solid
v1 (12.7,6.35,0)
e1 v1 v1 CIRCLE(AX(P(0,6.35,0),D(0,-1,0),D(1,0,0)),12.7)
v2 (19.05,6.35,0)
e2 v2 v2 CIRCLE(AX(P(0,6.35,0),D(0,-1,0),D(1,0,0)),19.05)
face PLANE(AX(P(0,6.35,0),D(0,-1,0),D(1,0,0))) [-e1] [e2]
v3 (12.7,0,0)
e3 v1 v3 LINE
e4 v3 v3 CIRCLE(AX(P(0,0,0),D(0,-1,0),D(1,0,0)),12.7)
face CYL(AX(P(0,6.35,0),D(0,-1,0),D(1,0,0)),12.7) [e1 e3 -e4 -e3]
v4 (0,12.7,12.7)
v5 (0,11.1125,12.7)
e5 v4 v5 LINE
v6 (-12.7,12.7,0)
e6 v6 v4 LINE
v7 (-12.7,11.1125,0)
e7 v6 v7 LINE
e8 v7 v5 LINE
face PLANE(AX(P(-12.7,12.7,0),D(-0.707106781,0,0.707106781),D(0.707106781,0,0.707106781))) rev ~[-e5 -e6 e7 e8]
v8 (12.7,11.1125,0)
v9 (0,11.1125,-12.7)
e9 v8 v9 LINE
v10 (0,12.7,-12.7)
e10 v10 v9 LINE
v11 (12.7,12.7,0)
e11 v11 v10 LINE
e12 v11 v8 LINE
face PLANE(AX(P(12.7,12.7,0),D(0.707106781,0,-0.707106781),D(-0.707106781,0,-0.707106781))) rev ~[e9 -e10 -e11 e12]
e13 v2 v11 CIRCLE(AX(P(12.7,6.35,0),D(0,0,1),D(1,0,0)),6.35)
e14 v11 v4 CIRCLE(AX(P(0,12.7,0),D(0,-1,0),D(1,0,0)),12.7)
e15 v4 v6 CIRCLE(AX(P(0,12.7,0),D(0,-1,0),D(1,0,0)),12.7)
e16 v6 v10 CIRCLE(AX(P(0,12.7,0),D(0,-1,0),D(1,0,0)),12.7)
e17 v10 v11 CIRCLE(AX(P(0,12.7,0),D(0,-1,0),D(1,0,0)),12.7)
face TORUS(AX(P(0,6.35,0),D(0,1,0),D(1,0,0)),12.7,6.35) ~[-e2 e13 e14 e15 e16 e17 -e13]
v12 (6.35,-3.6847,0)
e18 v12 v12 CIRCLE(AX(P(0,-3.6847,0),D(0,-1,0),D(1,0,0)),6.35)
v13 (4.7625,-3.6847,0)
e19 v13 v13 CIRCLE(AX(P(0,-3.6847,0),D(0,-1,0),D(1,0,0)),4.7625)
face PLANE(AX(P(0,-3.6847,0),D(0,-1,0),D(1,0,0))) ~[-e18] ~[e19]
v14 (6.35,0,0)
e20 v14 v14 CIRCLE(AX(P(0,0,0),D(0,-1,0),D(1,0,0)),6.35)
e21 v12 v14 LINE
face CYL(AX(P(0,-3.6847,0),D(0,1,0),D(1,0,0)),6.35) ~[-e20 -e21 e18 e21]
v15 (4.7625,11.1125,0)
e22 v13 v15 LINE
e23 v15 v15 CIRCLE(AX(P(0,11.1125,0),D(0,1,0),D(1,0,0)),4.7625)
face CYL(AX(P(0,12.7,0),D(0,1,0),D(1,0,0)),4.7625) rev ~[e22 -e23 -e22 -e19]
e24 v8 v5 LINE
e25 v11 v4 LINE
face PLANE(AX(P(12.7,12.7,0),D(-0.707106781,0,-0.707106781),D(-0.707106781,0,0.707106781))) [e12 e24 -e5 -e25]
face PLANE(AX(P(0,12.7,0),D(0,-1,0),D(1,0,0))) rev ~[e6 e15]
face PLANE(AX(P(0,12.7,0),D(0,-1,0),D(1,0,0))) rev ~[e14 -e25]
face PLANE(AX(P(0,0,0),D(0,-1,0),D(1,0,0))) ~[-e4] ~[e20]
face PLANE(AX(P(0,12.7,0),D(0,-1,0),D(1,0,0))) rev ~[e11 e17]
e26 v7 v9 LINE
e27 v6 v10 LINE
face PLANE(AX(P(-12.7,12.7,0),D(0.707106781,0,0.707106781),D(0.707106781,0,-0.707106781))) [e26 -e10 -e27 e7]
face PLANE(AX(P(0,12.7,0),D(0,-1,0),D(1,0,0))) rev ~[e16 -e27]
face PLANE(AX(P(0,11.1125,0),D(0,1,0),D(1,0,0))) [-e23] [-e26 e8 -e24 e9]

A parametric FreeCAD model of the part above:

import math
import FreeCAD as App
import Part
import Sketcher
Q = App.Units.Quantity


def add_polygon(sketch, points):
    """Adds a closed chain of lines whose ends are joined by coincident constraints."""
    first, n = sketch.GeometryCount, len(points)
    for a, b in zip(points, points[1:] + points[:1]):
        sketch.addGeometry(Part.LineSegment(App.Vector(*a, 0), App.Vector(*b, 0)), False)
    for i in range(n):
        sketch.addConstraint(Sketcher.Constraint("Coincident", first + i, 2, first + (i + 1) % n, 1))

doc = App.newDocument("Part")
body = doc.addObject("PartDesign::Body", "Body")

# Sketch on XY plane
sketch1 = body.newObject("Sketcher::SketchObject", "Sketch")
sketch1.AttachmentSupport = (doc.getObject("XY_Plane"), [""])
sketch1.MapMode = "FlatFace"
sketch1.addGeometry([
    Part.LineSegment(App.Vector(0, 12.7, 0), App.Vector(0, 0, 0)),  # 0
    Part.LineSegment(App.Vector(0, 0, 0), App.Vector(4.8, 0, 0)),  # 1
    Part.LineSegment(App.Vector(4.8, 0, 0), App.Vector(4.8, -3.7, 0)),  # 2
    Part.LineSegment(App.Vector(4.8, -3.7, 0), App.Vector(6.3, -3.7, 0)),  # 3
    Part.LineSegment(App.Vector(6.3, -3.7, 0), App.Vector(6.3, 0, 0)),  # 4
    Part.LineSegment(App.Vector(6.3, 0, 0), App.Vector(12.7, 0, 0)),  # 5
    Part.LineSegment(App.Vector(12.7, 0, 0), App.Vector(12.7, 6.3, 0)),  # 6
    Part.LineSegment(App.Vector(12.7, 6.3, 0), App.Vector(19.1, 6.3, 0)),  # 7
    Part.ArcOfCircle(Part.Circle(App.Vector(12.7, 6.3, 0), App.Vector(0, 0, 1), 6.4), math.radians(0), math.radians(90)),  # 8
    Part.LineSegment(App.Vector(12.7, 12.7, 0), App.Vector(0, 12.7, 0)),  # 9
], False)
sketch1.addConstraint([
    Sketcher.Constraint("Coincident", 0, 2, 1, 1),
    Sketcher.Constraint("Coincident", 1, 2, 2, 1),
    Sketcher.Constraint("Coincident", 2, 2, 3, 1),
    Sketcher.Constraint("Coincident", 3, 2, 4, 1),
    Sketcher.Constraint("Coincident", 4, 2, 5, 1),
    Sketcher.Constraint("Coincident", 5, 2, 6, 1),
    Sketcher.Constraint("Coincident", 6, 2, 7, 1),
    Sketcher.Constraint("Coincident", 7, 2, 8, 1),
    Sketcher.Constraint("Tangent", 8, 2, 9, 1),
    Sketcher.Constraint("Coincident", 9, 2, 0, 1),
    Sketcher.Constraint("Vertical", 0),
    Sketcher.Constraint("Horizontal", 1),
    Sketcher.Constraint("Vertical", 2),
    Sketcher.Constraint("Horizontal", 3),
    Sketcher.Constraint("Vertical", 4),
    Sketcher.Constraint("Horizontal", 5),
    Sketcher.Constraint("Vertical", 6),
    Sketcher.Constraint("Horizontal", 7),
    Sketcher.Constraint("Horizontal", 9),
    Sketcher.Constraint("Coincident", 0, 2, -1, 1),
    Sketcher.Constraint("Coincident", 6, 2, 8, 3),
    Sketcher.Constraint("PointOnObject", 4, 2, -1),
    Sketcher.Constraint("Equal", 5, 7),
    Sketcher.Constraint("Equal", 9, 0),
    Sketcher.Constraint("Equal", 7, 6),
    Sketcher.Constraint("Radius", 8, Q("0.25 in")),
    Sketcher.Constraint("DistanceX", 3, 1, 3, 2, Q("0.0625 in")),
    Sketcher.Constraint("DistanceY", 2, 2, 2, 1, Q("3.6847 mm")),
])
revolution = body.newObject("PartDesign::Revolution", "Revolution")
revolution.Profile = sketch1
revolution.ReferenceAxis = (sketch1, ["V_Axis"])
revolution.Angle = 360

# Sketch on XZ plane
sketch2 = body.newObject("Sketcher::SketchObject", "Sketch001")
sketch2.AttachmentSupport = (doc.getObject("XZ_Plane"), [""])
sketch2.MapMode = "FlatFace"
sketch2.AttachmentOffset = App.Placement(App.Vector(0, 0, -0.5 * 25.4), App.Rotation())
sketch2.addGeometry(Part.Circle(App.Vector(0, 0, 0), App.Vector(0, 0, 1), 4.8), False)
sketch2.addConstraint([
    Sketcher.Constraint("Coincident", 0, 3, -1, 1),
    Sketcher.Constraint("Diameter", 0, Q("0.375 in")),
])
pocket1 = body.newObject("PartDesign::Pocket", "Pocket")
pocket1.Profile = sketch2
pocket1.Type = "ThroughAll"
pocket1.Reversed = True

# Sketch on XZ plane
sketch3 = body.newObject("Sketcher::SketchObject", "Sketch002")
sketch3.AttachmentSupport = (doc.getObject("XZ_Plane"), [""])
sketch3.MapMode = "FlatFace"
sketch3.AttachmentOffset = App.Placement(App.Vector(0, 0, -0.5 * 25.4), App.Rotation())
add_polygon(sketch3, [(0, 13), (13, 0), (0, -13), (-13, 0)])  # lines 0-3
sketch3.addConstraint([
    Sketcher.Constraint("Symmetric", 0, 2, 2, 2, -1, 1),
    Sketcher.Constraint("Symmetric", 1, 2, 3, 2, -1, 1),
    Sketcher.Constraint("PointOnObject", 0, 2, -1),
    Sketcher.Constraint("PointOnObject", 1, 2, -2),
    Sketcher.Constraint("Perpendicular", 0, 1),
    Sketcher.Constraint("DistanceX", 2, 2, 0, 2, Q("1 in")),
])
pocket2 = body.newObject("PartDesign::Pocket", "Pocket001")
pocket2.Profile = sketch3
pocket2.Length = Q("0.0625 in")
pocket2.Reversed = True

doc.recompute()
